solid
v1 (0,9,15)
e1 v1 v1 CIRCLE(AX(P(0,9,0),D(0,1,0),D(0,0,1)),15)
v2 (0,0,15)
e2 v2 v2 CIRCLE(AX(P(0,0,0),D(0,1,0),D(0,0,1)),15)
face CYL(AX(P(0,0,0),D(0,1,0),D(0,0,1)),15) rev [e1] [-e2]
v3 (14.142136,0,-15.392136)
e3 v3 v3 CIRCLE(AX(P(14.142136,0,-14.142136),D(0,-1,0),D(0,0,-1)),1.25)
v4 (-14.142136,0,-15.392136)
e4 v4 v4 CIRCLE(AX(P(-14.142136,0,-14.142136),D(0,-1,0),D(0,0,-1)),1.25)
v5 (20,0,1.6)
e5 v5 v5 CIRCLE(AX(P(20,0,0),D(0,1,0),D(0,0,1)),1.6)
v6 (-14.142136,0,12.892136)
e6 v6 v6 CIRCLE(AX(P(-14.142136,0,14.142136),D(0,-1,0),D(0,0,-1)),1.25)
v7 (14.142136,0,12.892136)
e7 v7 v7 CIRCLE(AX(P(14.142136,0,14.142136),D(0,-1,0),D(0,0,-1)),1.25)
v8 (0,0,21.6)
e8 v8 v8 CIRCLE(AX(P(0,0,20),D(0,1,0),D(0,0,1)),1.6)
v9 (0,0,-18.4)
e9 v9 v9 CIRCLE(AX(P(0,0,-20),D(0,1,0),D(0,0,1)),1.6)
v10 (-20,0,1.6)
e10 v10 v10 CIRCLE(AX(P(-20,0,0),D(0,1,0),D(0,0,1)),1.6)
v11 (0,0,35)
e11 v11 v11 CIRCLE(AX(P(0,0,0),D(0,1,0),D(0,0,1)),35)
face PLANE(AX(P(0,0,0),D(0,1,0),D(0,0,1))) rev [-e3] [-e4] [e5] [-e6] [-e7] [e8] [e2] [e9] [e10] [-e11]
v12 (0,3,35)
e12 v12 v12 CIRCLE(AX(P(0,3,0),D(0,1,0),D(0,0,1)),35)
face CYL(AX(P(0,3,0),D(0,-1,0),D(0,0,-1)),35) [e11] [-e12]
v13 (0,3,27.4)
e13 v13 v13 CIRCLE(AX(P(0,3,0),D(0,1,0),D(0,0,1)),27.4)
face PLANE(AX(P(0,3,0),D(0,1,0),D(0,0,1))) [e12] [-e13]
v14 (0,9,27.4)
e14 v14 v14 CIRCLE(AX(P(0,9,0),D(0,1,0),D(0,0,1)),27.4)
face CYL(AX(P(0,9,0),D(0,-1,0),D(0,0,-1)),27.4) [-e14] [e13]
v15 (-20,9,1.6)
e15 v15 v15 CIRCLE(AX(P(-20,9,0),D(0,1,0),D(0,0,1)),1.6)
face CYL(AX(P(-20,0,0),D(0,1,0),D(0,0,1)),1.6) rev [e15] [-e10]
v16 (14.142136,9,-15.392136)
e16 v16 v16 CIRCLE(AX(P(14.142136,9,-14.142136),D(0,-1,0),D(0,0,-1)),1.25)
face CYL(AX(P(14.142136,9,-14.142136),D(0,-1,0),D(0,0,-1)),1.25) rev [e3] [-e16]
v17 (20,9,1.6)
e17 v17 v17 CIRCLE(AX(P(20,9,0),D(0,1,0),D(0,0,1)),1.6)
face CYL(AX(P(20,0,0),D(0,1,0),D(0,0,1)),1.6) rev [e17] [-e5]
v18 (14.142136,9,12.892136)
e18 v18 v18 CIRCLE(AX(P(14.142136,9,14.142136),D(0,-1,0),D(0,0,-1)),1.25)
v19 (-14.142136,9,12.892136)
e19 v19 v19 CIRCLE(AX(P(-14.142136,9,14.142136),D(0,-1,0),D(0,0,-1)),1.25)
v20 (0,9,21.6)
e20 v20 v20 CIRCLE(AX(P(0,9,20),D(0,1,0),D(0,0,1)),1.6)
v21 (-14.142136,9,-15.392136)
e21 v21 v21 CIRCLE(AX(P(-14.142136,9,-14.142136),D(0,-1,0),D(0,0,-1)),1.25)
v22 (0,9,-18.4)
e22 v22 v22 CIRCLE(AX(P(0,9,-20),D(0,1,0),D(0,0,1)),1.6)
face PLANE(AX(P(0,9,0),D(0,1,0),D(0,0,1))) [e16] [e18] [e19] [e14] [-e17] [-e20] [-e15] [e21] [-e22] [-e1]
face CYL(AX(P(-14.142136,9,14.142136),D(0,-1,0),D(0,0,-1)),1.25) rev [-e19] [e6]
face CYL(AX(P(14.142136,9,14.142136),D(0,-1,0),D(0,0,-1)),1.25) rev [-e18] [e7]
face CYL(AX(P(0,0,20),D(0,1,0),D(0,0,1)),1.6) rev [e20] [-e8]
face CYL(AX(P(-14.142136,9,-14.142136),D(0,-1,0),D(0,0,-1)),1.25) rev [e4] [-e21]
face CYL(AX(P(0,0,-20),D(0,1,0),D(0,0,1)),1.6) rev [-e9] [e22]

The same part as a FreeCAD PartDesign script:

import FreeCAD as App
import Part
import Sketcher

V = App.Vector

doc = App.newDocument("Part")
params = doc.addObject("Spreadsheet::Sheet", "Params")
for row, (alias, value) in enumerate([
    ("sketch1_diameter", "70 mm"),
    ("pad1_length", "3 mm"),
    ("sketch2_diameter", "54.8 mm"),
    ("pad2_length", "6 mm"),
    ("sketch3_diameter", "3.2 mm"),
    ("sketch4_diameter", "30 mm"),
    ("sketch5_diameter", "2.5 mm"),
], start=1):
    params.set(f"A{row}", alias)
    params.set(f"B{row}", "=" + value)
    params.setAlias(f"B{row}", alias)

body = doc.addObject("PartDesign::Body", "Body")

sketch1 = body.newObject("Sketcher::SketchObject", "Sketch")
sketch1.AttachmentSupport = (doc.getObject("XZ_Plane"), [""])
sketch1.MapMode = "FlatFace"
sketch1.addGeometry(Part.Circle(V(0, 0, 0), V(0, 0, 1), 35), False)
sketch1.addConstraint([
    Sketcher.Constraint("Coincident", 0, 3, -1, 1),
    Sketcher.Constraint("Diameter", 0, 70.0),
])
sketch1.setExpression("Constraints[1]", "Params.sketch1_diameter")
pad1 = body.newObject("PartDesign::Pad", "Pad")
pad1.Profile = sketch1
pad1.setExpression("Length", "Params.pad1_length")
pad1.Reversed = True

sketch2 = body.newObject("Sketcher::SketchObject", "Sketch001")
sketch2.AttachmentSupport = (doc.getObject("XZ_Plane"), [""])
sketch2.MapMode = "FlatFace"
sketch2.AttachmentOffset = App.Placement(V(0, 0, -3), App.Rotation())
sketch2.addGeometry(Part.Circle(V(0, 0, 0), V(0, 0, 1), 27.4), False)
sketch2.addConstraint([
    Sketcher.Constraint("Coincident", 0, 3, -1, 1),
    Sketcher.Constraint("Diameter", 0, 54.8),
])
sketch2.setExpression("Constraints[1]", "Params.sketch2_diameter")
pad2 = body.newObject("PartDesign::Pad", "Pad001")
pad2.Profile = sketch2
pad2.setExpression("Length", "Params.pad2_length")
pad2.Reversed = True

sketch3 = body.newObject("Sketcher::SketchObject", "Sketch002")
sketch3.AttachmentSupport = (doc.getObject("XZ_Plane"), [""])
sketch3.MapMode = "FlatFace"
sketch3.AttachmentOffset = App.Placement(V(0, 0, -9), App.Rotation())
sketch3.addGeometry([
    Part.Circle(V(0, -20, 0), V(0, 0, 1), 1.6),
    Part.Circle(V(20, 0, 0), V(0, 0, 1), 1.6),
    Part.Circle(V(0, 20, 0), V(0, 0, 1), 1.6),
    Part.Circle(V(-20, 0, 0), V(0, 0, 1), 1.6),
], False)
sketch3.addConstraint([
    Sketcher.Constraint("Equal", 0, 1),
    Sketcher.Constraint("Equal", 1, 2),
    Sketcher.Constraint("Equal", 2, 3),
    Sketcher.Constraint("Symmetric", 0, 3, 2, 3, -1, 1),
    Sketcher.Constraint("Symmetric", 1, 3, 3, 3, -1, 1),
    Sketcher.Constraint("PointOnObject", 0, 3, -2),
    Sketcher.Constraint("PointOnObject", 1, 3, -1),
    Sketcher.Constraint("Diameter", 0, 3.2),
    Sketcher.Constraint("DistanceY", 0, 3, -1, 1, 20.0),
    Sketcher.Constraint("DistanceX", -1, 1, 1, 3, 20.0),
])
sketch3.setExpression("Constraints[7]", "Params.sketch3_diameter")
pocket1 = body.newObject("PartDesign::Pocket", "Pocket")
pocket1.Profile = sketch3
pocket1.Type = "ThroughAll"
pocket1.Reversed = True

sketch4 = body.newObject("Sketcher::SketchObject", "Sketch003")
sketch4.AttachmentSupport = (doc.getObject("XZ_Plane"), [""])
sketch4.MapMode = "FlatFace"
sketch4.AttachmentOffset = App.Placement(V(0, 0, -9), App.Rotation())
sketch4.addGeometry(Part.Circle(V(0, 0, 0), V(0, 0, 1), 15), False)
sketch4.addConstraint([
    Sketcher.Constraint("Coincident", 0, 3, -1, 1),
    Sketcher.Constraint("Diameter", 0, 30.0),
])
sketch4.setExpression("Constraints[1]", "Params.sketch4_diameter")
pocket2 = body.newObject("PartDesign::Pocket", "Pocket001")
pocket2.Profile = sketch4
pocket2.Type = "ThroughAll"
pocket2.Reversed = True

sketch5 = body.newObject("Sketcher::SketchObject", "Sketch004")
sketch5.AttachmentSupport = (doc.getObject("XZ_Plane"), [""])
sketch5.MapMode = "FlatFace"
sketch5.addGeometry([
    Part.Circle(V(-14.142136, 14.142136, 0), V(0, 0, 1), 1.25),
    Part.Circle(V(14.142136, 14.142136, 0), V(0, 0, 1), 1.25),
    Part.Circle(V(14.142136, -14.142136, 0), V(0, 0, 1), 1.25),
    Part.Circle(V(-14.142136, -14.142136, 0), V(0, 0, 1), 1.25),
], False)
sketch5.addConstraint([
    Sketcher.Constraint("Equal", 0, 1),
    Sketcher.Constraint("Equal", 1, 2),
    Sketcher.Constraint("Equal", 2, 3),
    Sketcher.Constraint("Symmetric", 0, 3, 2, 3, -1, 1),
    Sketcher.Constraint("Symmetric", 1, 3, 3, 3, -1, 1),
    Sketcher.Constraint("Symmetric", 0, 3, 1, 3, -2),
    Sketcher.Constraint("Diameter", 0, 2.5),
    Sketcher.Constraint("DistanceX", 0, 3, 1, 3, 28.284271),
    Sketcher.Constraint("DistanceY", 2, 3, 1, 3, 28.284271),
])
sketch5.setExpression("Constraints[6]", "Params.sketch5_diameter")
pocket3 = body.newObject("PartDesign::Pocket", "Pocket002")
pocket3.Profile = sketch5
pocket3.Type = "ThroughAll"

doc.recompute()
